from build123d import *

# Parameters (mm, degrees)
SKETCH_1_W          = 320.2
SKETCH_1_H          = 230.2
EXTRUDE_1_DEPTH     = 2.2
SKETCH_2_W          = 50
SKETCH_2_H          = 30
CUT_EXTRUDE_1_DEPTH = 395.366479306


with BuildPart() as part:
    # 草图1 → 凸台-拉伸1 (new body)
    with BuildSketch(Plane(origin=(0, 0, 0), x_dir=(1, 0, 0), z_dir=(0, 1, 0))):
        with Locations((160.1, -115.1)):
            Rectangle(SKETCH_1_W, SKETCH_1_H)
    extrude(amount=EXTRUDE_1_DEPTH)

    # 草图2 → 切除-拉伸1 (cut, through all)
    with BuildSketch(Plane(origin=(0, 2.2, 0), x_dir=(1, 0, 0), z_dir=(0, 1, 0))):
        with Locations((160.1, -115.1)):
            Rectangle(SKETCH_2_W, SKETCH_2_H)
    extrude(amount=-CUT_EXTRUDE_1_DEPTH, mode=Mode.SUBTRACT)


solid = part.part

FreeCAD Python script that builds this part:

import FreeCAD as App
import Part
import Sketcher

V = App.Vector
Q = App.Units.Quantity


def add_polygon(sketch, points):
    """Adds a closed chain of lines whose ends are joined by coincident constraints."""
    first, n = sketch.GeometryCount, len(points)
    for a, b in zip(points, points[1:] + points[:1]):
        sketch.addGeometry(Part.LineSegment(App.Vector(*a, 0), App.Vector(*b, 0)), False)
    for i in range(n):
        sketch.addConstraint(Sketcher.Constraint("Coincident", first + i, 2, first + (i + 1) % n, 1))

doc = App.newDocument("Part")
body = doc.addObject("PartDesign::Body", "Body")

sketch1 = body.newObject("Sketcher::SketchObject", "Sketch")
sketch1.AttachmentSupport = (doc.getObject("XZ_Plane"), [""])
sketch1.MapMode = "FlatFace"
add_polygon(sketch1, [(0, 0), (0, 230), (320, 230), (320, 0)])
sketch1.addConstraint(Sketcher.Constraint("Vertical", 0))
sketch1.addConstraint(Sketcher.Constraint("Horizontal", 1))
sketch1.addConstraint(Sketcher.Constraint("Vertical", 2))
sketch1.addConstraint(Sketcher.Constraint("Horizontal", 3))
sketch1.addConstraint(Sketcher.Constraint("Coincident", 3, 2, -1, 1))
sketch1.addConstraint(Sketcher.Constraint("DistanceX", 1, 1, 1, 2, Q("320.2 mm")))
sketch1.addConstraint(Sketcher.Constraint("DistanceY", 0, 1, 0, 2, Q("230.2 mm")))
pad1 = body.newObject("PartDesign::Pad", "Pad")
pad1.Profile = sketch1
pad1.Length = 2.2
pad1.Reversed = True

sketch2 = body.newObject("Sketcher::SketchObject", "Sketch001")
sketch2.AttachmentSupport = (doc.getObject("XZ_Plane"), [""])
sketch2.MapMode = "FlatFace"
sketch2.AttachmentOffset = App.Placement(V(0, 0, -2.2), App.Rotation())
add_polygon(sketch2, [(135, 100), (135, 130), (185, 130), (185, 100)])
sketch2.addConstraint(Sketcher.Constraint("Vertical", 0))
sketch2.addConstraint(Sketcher.Constraint("Horizontal", 1))
sketch2.addConstraint(Sketcher.Constraint("Vertical", 2))
sketch2.addConstraint(Sketcher.Constraint("Horizontal", 3))
sketch2.addConstraint(Sketcher.Constraint("DistanceX", 1, 1, 1, 2, Q("50 mm")))
sketch2.addConstraint(Sketcher.Constraint("DistanceY", 0, 1, 0, 2, Q("30 mm")))
sketch2.addConstraint(Sketcher.Constraint("DistanceX", -1, 1, 0, 2, Q("135.1 mm")))
sketch2.addConstraint(Sketcher.Constraint("DistanceY", -1, 1, 0, 2, Q("130.1 mm")))
pocket1 = body.newObject("PartDesign::Pocket", "Pocket")
pocket1.Profile = sketch2
pocket1.Type = "ThroughAll"
pocket1.Reversed = True

doc.recompute()
